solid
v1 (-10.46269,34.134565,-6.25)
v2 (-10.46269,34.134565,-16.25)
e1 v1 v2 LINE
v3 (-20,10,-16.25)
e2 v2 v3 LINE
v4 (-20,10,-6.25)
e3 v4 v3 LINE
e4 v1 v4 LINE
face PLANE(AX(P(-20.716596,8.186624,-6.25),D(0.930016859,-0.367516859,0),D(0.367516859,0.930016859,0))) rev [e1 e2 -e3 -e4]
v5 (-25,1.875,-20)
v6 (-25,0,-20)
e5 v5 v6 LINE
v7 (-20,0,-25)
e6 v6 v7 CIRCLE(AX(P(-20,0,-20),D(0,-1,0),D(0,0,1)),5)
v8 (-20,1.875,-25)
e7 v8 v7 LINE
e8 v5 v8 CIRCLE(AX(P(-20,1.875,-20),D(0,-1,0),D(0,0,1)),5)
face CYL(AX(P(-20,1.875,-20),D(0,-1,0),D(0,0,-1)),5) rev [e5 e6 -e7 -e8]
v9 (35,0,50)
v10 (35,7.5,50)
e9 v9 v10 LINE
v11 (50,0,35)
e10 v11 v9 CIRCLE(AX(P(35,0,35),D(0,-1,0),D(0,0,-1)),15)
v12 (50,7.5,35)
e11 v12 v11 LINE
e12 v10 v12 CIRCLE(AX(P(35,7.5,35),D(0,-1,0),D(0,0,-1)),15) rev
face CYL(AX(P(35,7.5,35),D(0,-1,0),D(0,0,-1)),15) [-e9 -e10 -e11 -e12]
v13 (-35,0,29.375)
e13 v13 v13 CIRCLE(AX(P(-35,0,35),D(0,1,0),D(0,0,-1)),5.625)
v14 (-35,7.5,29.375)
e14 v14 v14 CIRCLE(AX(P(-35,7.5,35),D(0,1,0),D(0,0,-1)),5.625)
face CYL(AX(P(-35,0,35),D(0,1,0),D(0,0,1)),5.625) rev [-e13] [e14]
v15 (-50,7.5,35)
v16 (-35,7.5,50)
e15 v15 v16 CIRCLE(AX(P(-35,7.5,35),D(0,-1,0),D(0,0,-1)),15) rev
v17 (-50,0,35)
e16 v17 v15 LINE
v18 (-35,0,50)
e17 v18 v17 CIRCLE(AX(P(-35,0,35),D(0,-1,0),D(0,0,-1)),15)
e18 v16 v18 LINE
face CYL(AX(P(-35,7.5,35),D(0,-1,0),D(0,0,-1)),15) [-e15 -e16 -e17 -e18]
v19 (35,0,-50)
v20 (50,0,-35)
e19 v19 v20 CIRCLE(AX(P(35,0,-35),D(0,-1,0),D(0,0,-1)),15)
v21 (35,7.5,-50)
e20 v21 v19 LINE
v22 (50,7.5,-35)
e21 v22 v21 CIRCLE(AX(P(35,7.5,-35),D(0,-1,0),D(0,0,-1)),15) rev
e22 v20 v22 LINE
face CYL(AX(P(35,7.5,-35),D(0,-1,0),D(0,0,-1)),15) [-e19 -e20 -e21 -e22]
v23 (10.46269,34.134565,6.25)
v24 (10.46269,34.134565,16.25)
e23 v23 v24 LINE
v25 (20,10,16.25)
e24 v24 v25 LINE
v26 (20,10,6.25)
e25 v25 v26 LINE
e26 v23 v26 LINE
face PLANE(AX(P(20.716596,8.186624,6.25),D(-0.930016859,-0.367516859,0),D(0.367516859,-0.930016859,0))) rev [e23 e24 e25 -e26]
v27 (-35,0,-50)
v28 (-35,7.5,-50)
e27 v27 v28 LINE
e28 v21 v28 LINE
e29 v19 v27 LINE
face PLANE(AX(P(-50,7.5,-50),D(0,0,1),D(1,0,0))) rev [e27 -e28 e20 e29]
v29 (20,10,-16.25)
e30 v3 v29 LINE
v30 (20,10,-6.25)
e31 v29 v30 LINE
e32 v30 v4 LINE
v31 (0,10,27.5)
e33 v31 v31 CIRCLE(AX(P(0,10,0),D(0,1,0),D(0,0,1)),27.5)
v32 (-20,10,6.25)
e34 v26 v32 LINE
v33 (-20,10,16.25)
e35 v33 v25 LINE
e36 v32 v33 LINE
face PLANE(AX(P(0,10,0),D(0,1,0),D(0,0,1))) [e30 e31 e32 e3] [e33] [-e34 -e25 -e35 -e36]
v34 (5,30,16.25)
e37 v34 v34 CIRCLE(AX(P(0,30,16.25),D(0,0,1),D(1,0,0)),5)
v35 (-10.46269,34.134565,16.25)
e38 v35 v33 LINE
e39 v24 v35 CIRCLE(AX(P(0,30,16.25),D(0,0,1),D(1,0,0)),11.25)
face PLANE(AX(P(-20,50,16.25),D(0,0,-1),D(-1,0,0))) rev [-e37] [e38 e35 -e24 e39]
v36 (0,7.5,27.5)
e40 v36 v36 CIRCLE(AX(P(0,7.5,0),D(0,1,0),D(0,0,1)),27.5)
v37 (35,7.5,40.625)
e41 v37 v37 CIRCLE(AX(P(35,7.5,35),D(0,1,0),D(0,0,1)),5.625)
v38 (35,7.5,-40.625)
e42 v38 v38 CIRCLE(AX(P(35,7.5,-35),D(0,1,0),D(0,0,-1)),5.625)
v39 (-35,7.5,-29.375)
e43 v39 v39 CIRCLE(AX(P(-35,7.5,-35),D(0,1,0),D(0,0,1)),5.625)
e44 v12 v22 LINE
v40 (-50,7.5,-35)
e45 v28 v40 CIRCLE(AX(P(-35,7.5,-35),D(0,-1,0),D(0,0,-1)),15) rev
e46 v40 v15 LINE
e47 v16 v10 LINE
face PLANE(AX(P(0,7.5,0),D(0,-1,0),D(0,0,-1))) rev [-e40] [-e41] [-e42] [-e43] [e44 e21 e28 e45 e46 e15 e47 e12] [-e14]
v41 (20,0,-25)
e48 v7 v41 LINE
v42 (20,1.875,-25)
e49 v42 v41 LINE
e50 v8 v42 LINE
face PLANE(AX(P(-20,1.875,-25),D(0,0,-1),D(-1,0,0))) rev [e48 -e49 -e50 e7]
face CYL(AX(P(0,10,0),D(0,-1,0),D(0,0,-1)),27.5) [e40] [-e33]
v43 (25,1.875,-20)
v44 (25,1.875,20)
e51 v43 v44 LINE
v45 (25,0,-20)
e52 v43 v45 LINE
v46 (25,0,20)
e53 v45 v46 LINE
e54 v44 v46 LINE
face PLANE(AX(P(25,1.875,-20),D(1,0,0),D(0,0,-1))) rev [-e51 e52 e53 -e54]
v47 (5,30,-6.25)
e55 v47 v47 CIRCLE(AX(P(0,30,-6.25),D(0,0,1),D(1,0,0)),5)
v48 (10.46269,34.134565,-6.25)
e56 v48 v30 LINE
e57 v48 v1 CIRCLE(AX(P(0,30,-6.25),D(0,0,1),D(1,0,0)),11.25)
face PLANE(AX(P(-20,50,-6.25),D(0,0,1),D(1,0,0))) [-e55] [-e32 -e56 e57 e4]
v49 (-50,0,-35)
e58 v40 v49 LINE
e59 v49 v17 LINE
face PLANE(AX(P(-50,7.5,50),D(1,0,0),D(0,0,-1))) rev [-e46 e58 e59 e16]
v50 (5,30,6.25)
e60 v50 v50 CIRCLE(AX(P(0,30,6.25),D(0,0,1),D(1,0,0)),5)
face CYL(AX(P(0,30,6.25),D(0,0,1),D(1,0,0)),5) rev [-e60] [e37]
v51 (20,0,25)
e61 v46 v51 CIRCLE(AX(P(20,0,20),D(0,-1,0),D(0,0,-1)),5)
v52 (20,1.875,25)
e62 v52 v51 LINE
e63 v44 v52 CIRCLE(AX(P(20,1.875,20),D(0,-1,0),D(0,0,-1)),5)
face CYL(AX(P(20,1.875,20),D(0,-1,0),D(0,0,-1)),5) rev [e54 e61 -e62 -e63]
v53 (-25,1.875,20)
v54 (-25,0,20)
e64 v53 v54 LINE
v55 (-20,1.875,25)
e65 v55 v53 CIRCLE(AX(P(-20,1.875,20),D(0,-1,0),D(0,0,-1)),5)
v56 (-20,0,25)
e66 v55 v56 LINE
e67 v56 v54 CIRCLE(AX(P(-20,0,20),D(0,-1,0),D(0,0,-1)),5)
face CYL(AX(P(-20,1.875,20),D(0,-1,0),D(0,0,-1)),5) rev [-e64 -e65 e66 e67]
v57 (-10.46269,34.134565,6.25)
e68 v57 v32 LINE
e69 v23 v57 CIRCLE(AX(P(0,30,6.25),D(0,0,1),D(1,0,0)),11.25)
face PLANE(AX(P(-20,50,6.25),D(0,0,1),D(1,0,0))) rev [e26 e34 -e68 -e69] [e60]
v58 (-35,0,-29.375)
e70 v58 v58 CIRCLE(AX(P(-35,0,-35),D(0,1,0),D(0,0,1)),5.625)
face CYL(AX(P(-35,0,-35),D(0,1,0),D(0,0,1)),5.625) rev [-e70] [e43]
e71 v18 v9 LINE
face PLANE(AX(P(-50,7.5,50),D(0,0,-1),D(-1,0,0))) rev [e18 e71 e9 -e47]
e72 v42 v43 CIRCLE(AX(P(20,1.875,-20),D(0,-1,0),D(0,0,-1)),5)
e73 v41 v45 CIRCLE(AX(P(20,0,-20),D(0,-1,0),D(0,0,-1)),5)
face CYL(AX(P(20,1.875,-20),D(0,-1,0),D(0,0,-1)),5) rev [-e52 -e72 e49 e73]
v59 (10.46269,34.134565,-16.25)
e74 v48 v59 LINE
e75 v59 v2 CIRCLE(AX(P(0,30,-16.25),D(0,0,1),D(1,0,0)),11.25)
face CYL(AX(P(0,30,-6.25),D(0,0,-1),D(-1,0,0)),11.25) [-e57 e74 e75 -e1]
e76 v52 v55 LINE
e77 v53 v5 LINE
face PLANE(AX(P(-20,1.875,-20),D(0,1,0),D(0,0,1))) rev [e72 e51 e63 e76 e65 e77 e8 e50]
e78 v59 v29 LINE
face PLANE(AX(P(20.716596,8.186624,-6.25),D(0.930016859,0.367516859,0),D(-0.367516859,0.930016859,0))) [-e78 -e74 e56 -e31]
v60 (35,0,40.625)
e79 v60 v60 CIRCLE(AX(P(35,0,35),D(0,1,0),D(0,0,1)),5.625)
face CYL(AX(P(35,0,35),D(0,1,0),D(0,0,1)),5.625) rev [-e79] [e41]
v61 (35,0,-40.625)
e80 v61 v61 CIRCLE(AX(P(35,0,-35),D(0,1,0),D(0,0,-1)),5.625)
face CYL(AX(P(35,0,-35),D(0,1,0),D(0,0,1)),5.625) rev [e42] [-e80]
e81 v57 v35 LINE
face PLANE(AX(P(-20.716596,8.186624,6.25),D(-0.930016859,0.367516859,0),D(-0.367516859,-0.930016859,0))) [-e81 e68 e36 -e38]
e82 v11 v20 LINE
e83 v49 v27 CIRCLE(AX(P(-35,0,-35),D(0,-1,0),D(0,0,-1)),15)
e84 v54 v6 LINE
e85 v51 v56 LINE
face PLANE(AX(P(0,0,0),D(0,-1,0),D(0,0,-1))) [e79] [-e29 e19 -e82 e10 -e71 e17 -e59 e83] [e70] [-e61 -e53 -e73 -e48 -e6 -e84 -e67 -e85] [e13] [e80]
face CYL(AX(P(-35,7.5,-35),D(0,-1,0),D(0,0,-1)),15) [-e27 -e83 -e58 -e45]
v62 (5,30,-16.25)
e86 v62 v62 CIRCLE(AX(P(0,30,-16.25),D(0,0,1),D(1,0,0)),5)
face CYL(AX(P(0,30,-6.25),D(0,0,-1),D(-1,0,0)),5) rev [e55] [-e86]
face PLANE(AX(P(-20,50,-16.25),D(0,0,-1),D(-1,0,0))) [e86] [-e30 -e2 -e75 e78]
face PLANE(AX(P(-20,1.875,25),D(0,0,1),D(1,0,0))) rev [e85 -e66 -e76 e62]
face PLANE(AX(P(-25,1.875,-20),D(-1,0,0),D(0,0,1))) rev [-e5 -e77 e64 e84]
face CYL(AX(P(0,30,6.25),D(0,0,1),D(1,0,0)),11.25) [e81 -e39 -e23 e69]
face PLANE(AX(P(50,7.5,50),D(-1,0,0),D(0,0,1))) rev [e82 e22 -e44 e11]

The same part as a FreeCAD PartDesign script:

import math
import FreeCAD as App
import Part
import Sketcher
from FreeCAD import Vector
Q = App.Units.Quantity


def edges_at(feature, points):
    """Names of the edges that pass closest to the given points."""
    edges = feature.Shape.Edges
    near = lambda p: min(range(len(edges)), key=lambda i: edges[i].distToShape(Part.Vertex(*p))[0])
    return sorted({f"Edge{near(p) + 1}" for p in points})


def add_polygon(sketch, points):
    """Adds a closed chain of lines whose ends are joined by coincident constraints."""
    first, n = sketch.GeometryCount, len(points)
    for a, b in zip(points, points[1:] + points[:1]):
        sketch.addGeometry(Part.LineSegment(App.Vector(*a, 0), App.Vector(*b, 0)), False)
    for i in range(n):
        sketch.addConstraint(Sketcher.Constraint("Coincident", first + i, 2, first + (i + 1) % n, 1))

doc = App.newDocument("Part")
body = doc.addObject("PartDesign::Body", "Body")

sketch1 = body.newObject("Sketcher::SketchObject", "Sketch")
sketch1.AttachmentSupport = (doc.getObject("XZ_Plane"), [""])
sketch1.MapMode = "FlatFace"
add_polygon(sketch1, [(-50, -50), (-50, 50), (50, 50), (50, -50)])
sketch1.addConstraint(Sketcher.Constraint("Vertical", 0))
sketch1.addConstraint(Sketcher.Constraint("Horizontal", 1))
sketch1.addConstraint(Sketcher.Constraint("Vertical", 2))
sketch1.addConstraint(Sketcher.Constraint("Horizontal", 3))
sketch1.addConstraint(Sketcher.Constraint("Symmetric", 0, 2, 2, 2, -1, 1))
sketch1.addConstraint(Sketcher.Constraint("Equal", 3, 0))
sketch1.addConstraint(Sketcher.Constraint("DistanceX", 1, 1, 1, 2, Q("100 mm")))
pad1 = body.newObject("PartDesign::Pad", "Pad")
pad1.Profile = sketch1
pad1.Length = 7.5
pad1.Reversed = True
doc.recompute()

fillet = body.newObject("PartDesign::Fillet", "Fillet")
fillet.Base = (pad1, edges_at(pad1, [
    (50, 3.75, 50),
    (-50, 3.75, 50),
    (-50, 3.75, -50),
    (50, 3.75, -50),
]))
fillet.Radius = 15

sketch2 = body.newObject("Sketcher::SketchObject", "Sketch001")
sketch2.AttachmentSupport = (doc.getObject("XZ_Plane"), [""])
sketch2.MapMode = "FlatFace"
sketch2.AttachmentOffset = App.Placement(Vector(0, 0, -7.5), App.Rotation())
sketch2.addGeometry(Part.Circle(Vector(-35, -35, 0), Vector(0, 0, 1), 5.625), False)
sketch2.addGeometry(Part.Circle(Vector(35, -35, 0), Vector(0, 0, 1), 5.625), False)
sketch2.addGeometry(Part.Circle(Vector(35, 35, 0), Vector(0, 0, 1), 5.625), False)
sketch2.addGeometry(Part.Circle(Vector(-35, 35, 0), Vector(0, 0, 1), 5.625), False)
sketch2.addConstraint(Sketcher.Constraint("Equal", 0, 1))
sketch2.addConstraint(Sketcher.Constraint("Equal", 1, 2))
sketch2.addConstraint(Sketcher.Constraint("Equal", 2, 3))
sketch2.addConstraint(Sketcher.Constraint("Symmetric", 0, 3, 2, 3, -1, 1))
sketch2.addConstraint(Sketcher.Constraint("Symmetric", 1, 3, 3, 3, -1, 1))
sketch2.addConstraint(Sketcher.Constraint("Symmetric", 0, 3, 1, 3, -2))
sketch2.addConstraint(Sketcher.Constraint("Diameter", 0, Q("11.25 mm")))
sketch2.addConstraint(Sketcher.Constraint("DistanceX", 0, 3, -1, 1, Q("35 mm")))
sketch2.addConstraint(Sketcher.Constraint("DistanceY", 0, 3, -1, 1, Q("35 mm")))
pocket1 = body.newObject("PartDesign::Pocket", "Pocket")
pocket1.Profile = sketch2
pocket1.Length = 7.5
pocket1.Reversed = True

sketch3 = body.newObject("Sketcher::SketchObject", "Sketch002")
sketch3.AttachmentSupport = (doc.getObject("XZ_Plane"), [""])
sketch3.MapMode = "FlatFace"
sketch3.AttachmentOffset = App.Placement(Vector(0, 0, -7.5), App.Rotation())
sketch3.addGeometry(Part.Circle(Vector(0, 0, 0), Vector(0, 0, 1), 27.5), False)
sketch3.addConstraint(Sketcher.Constraint("Coincident", 0, 3, -1, 1))
sketch3.addConstraint(Sketcher.Constraint("Diameter", 0, Q("55 mm")))
pad2 = body.newObject("PartDesign::Pad", "Pad001")
pad2.Profile = sketch3
pad2.Length = 2.5
pad2.Reversed = True

sketch4 = body.newObject("Sketcher::SketchObject", "Sketch003")
sketch4.AttachmentSupport = (doc.getObject("XZ_Plane"), [""])
sketch4.MapMode = "FlatFace"
sketch4.AttachmentOffset = App.Placement(Vector(0, 0, -10), App.Rotation())
add_polygon(sketch4, [(-20, 6.25), (-20, 16.25), (20, 16.25), (20, 6.25)])
sketch4.addConstraint(Sketcher.Constraint("Vertical", 0))
sketch4.addConstraint(Sketcher.Constraint("Horizontal", 1))
sketch4.addConstraint(Sketcher.Constraint("Vertical", 2))
sketch4.addConstraint(Sketcher.Constraint("Horizontal", 3))
sketch4.addConstraint(Sketcher.Constraint("DistanceX", 1, 1, 1, 2, Q("40 mm")))
sketch4.addConstraint(Sketcher.Constraint("DistanceY", 0, 1, 0, 2, Q("10 mm")))
sketch4.addConstraint(Sketcher.Constraint("DistanceX", 0, 2, -1, 1, Q("20 mm")))
sketch4.addConstraint(Sketcher.Constraint("DistanceY", -1, 1, 0, 2, Q("16.25 mm")))
pad3 = body.newObject("PartDesign::Pad", "Pad002")
pad3.Profile = sketch4
pad3.Length = 40
pad3.Reversed = True

sketch5 = body.newObject("Sketcher::SketchObject", "Sketch004")
sketch5.AttachmentSupport = (doc.getObject("XY_Plane"), [""])
sketch5.MapMode = "FlatFace"
sketch5.AttachmentOffset = App.Placement(Vector(0, 0, 16.25), App.Rotation())
sketch5.addGeometry(Part.ArcOfCircle(Part.Circle(Vector(0, 30, 0), Vector(0, 0, 1), 11.25), math.radians(21.562557), math.radians(158.437443)), False)
sketch5.addGeometry(Part.LineSegment(Vector(10.46269, 34.134565, 0), Vector(20, 10, 0)), False)
sketch5.addGeometry(Part.LineSegment(Vector(20, 10, 0), Vector(20, 50, 0)), False)
sketch5.addGeometry(Part.LineSegment(Vector(20, 50, 0), Vector(-20, 50, 0)), False)
sketch5.addGeometry(Part.LineSegment(Vector(-20, 50, 0), Vector(-20, 10, 0)), False)
sketch5.addGeometry(Part.LineSegment(Vector(-20, 10, 0), Vector(-10.46269, 34.134565, 0)), False)
sketch5.addGeometry(Part.Circle(Vector(0, 30, 0), Vector(0, 0, 1), 5), False)
sketch5.addConstraint(Sketcher.Constraint("Tangent", 0, 1, 1, 1))
sketch5.addConstraint(Sketcher.Constraint("Coincident", 1, 2, 2, 1))
sketch5.addConstraint(Sketcher.Constraint("Coincident", 2, 2, 3, 1))
sketch5.addConstraint(Sketcher.Constraint("Coincident", 3, 2, 4, 1))
sketch5.addConstraint(Sketcher.Constraint("Coincident", 4, 2, 5, 1))
sketch5.addConstraint(Sketcher.Constraint("Tangent", 5, 2, 0, 2))
sketch5.addConstraint(Sketcher.Constraint("Vertical", 2))
sketch5.addConstraint(Sketcher.Constraint("Horizontal", 3))
sketch5.addConstraint(Sketcher.Constraint("Vertical", 4))
sketch5.addConstraint(Sketcher.Constraint("Coincident", 6, 3, 0, 3))
sketch5.addConstraint(Sketcher.Constraint("Symmetric", 1, 2, 4, 2, -2))
sketch5.addConstraint(Sketcher.Constraint("PointOnObject", 0, 3, -2))
sketch5.addConstraint(Sketcher.Constraint("Equal", 3, 2))
sketch5.addConstraint(Sketcher.Constraint("Diameter", 6, Q("10 mm")))
sketch5.addConstraint(Sketcher.Constraint("DistanceX", 3, 2, 3, 1, Q("40 mm")))
sketch5.addConstraint(Sketcher.Constraint("Radius", 0, Q("11.25 mm")))
sketch5.addConstraint(Sketcher.Constraint("DistanceY", -1, 1, 0, 3, Q("30 mm")))
sketch5.addConstraint(Sketcher.Constraint("DistanceY", -1, 1, 1, 2, Q("10 mm")))
pocket2 = body.newObject("PartDesign::Pocket", "Pocket001")
pocket2.Profile = sketch5
pocket2.Length = 10
doc.recompute()

mirrored = body.newObject("PartDesign::Mirrored", "Mirrored")
mirrored.Originals = [pad3, pocket2]
mirrored.MirrorPlane = (doc.getObject("XY_Plane"), [""])
body.Tip = mirrored

sketch6 = body.newObject("Sketcher::SketchObject", "Sketch005")
sketch6.AttachmentSupport = (doc.getObject("XZ_Plane"), [""])
sketch6.MapMode = "FlatFace"
sketch6.addGeometry(Part.LineSegment(Vector(-20, -25, 0), Vector(20, -25, 0)), False)
sketch6.addGeometry(Part.ArcOfCircle(Part.Circle(Vector(20, -20, 0), Vector(0, 0, 1), 5), math.radians(-90), math.radians(0)), False)
sketch6.addGeometry(Part.LineSegment(Vector(25, -20, 0), Vector(25, 20, 0)), False)
sketch6.addGeometry(Part.ArcOfCircle(Part.Circle(Vector(20, 20, 0), Vector(0, 0, 1), 5), math.radians(0), math.radians(90)), False)
sketch6.addGeometry(Part.LineSegment(Vector(20, 25, 0), Vector(-20, 25, 0)), False)
sketch6.addGeometry(Part.ArcOfCircle(Part.Circle(Vector(-20, 20, 0), Vector(0, 0, 1), 5), math.radians(90), math.radians(180)), False)
sketch6.addGeometry(Part.LineSegment(Vector(-25, 20, 0), Vector(-25, -20, 0)), False)
sketch6.addGeometry(Part.ArcOfCircle(Part.Circle(Vector(-20, -20, 0), Vector(0, 0, 1), 5), math.radians(180), math.radians(270)), False)
sketch6.addConstraint(Sketcher.Constraint("Tangent", 0, 2, 1, 1))
sketch6.addConstraint(Sketcher.Constraint("Tangent", 1, 2, 2, 1))
sketch6.addConstraint(Sketcher.Constraint("Tangent", 2, 2, 3, 1))
sketch6.addConstraint(Sketcher.Constraint("Tangent", 3, 2, 4, 1))
sketch6.addConstraint(Sketcher.Constraint("Tangent", 4, 2, 5, 1))
sketch6.addConstraint(Sketcher.Constraint("Tangent", 5, 2, 6, 1))
sketch6.addConstraint(Sketcher.Constraint("Tangent", 6, 2, 7, 1))
sketch6.addConstraint(Sketcher.Constraint("Tangent", 7, 2, 0, 1))
sketch6.addConstraint(Sketcher.Constraint("Horizontal", 0))
sketch6.addConstraint(Sketcher.Constraint("Vertical", 2))
sketch6.addConstraint(Sketcher.Constraint("Horizontal", 4))
sketch6.addConstraint(Sketcher.Constraint("Vertical", 6))
sketch6.addConstraint(Sketcher.Constraint("Equal", 1, 3))
sketch6.addConstraint(Sketcher.Constraint("Equal", 3, 5))
sketch6.addConstraint(Sketcher.Constraint("Equal", 5, 7))
sketch6.addConstraint(Sketcher.Constraint("Symmetric", 1, 3, 5, 3, -1, 1))
sketch6.addConstraint(Sketcher.Constraint("Equal", 4, 2))
sketch6.addConstraint(Sketcher.Constraint("Radius", 1, Q("5 mm")))
sketch6.addConstraint(Sketcher.Constraint("DistanceX", 0, 1, 0, 2, Q("40 mm")))
pocket3 = body.newObject("PartDesign::Pocket", "Pocket002")
pocket3.Profile = sketch6
pocket3.Length = 1.875

doc.recompute()
